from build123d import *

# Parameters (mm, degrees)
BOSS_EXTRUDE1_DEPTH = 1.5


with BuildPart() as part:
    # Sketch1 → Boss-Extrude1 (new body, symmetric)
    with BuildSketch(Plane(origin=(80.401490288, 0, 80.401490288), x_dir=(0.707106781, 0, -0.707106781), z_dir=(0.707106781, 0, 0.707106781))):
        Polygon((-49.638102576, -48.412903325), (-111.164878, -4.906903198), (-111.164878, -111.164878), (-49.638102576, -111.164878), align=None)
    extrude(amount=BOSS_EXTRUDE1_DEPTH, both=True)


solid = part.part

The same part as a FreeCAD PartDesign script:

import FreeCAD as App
import Part
import Sketcher

V = App.Vector
Q = App.Units.Quantity


def add_polygon(sketch, points):
    """Adds a closed chain of lines whose ends are joined by coincident constraints."""
    first, n = sketch.GeometryCount, len(points)
    for a, b in zip(points, points[1:] + points[:1]):
        sketch.addGeometry(Part.LineSegment(App.Vector(*a, 0), App.Vector(*b, 0)), False)
    for i in range(n):
        sketch.addConstraint(Sketcher.Constraint("Coincident", first + i, 2, first + (i + 1) % n, 1))

doc = App.newDocument("Part")
body = doc.addObject("PartDesign::Body", "Body")

# Sketch on an angled plane
sketch1 = doc.addObject("Sketcher::SketchObject", "Sketch")
body.addObject(sketch1)
sketch1.Placement = App.Placement(V(80.40149, 0, 80.40149), App.Rotation(V(0.707106781, 0, -0.707106781), V(0, 0.999999999, 0), V(0.707106781, 0, 0.707106781), "ZXY"))
add_polygon(sketch1, [(-49.638103, -48.412903), (-111.164878, -4.906903), (-111.164878, -111.164878), (-49.638103, -111.164878)])  # lines 0-3
sketch1.addConstraint([
    Sketcher.Constraint("Vertical", 1),
    Sketcher.Constraint("Horizontal", 2),
    Sketcher.Constraint("Vertical", 3),
    Sketcher.Constraint("DistanceY", 3, 2, 0, 2, Q("43.506 mm")),
    Sketcher.Constraint("DistanceX", 2, 1, 2, 2, Q("61.526775 mm")),
    Sketcher.Constraint("DistanceY", 1, 2, 1, 1, Q("106.257975 mm")),
    Sketcher.Constraint("DistanceX", 0, 2, -1, 1, Q("111.164878 mm")),
    Sketcher.Constraint("DistanceY", 0, 2, -1, 1, Q("4.906903 mm")),
])
pad1 = doc.addObject("PartDesign::Pad", "Pad")
body.addObject(pad1)
pad1.Profile = sketch1
pad1.Length = 3
pad1.Midplane = True

doc.recompute()
